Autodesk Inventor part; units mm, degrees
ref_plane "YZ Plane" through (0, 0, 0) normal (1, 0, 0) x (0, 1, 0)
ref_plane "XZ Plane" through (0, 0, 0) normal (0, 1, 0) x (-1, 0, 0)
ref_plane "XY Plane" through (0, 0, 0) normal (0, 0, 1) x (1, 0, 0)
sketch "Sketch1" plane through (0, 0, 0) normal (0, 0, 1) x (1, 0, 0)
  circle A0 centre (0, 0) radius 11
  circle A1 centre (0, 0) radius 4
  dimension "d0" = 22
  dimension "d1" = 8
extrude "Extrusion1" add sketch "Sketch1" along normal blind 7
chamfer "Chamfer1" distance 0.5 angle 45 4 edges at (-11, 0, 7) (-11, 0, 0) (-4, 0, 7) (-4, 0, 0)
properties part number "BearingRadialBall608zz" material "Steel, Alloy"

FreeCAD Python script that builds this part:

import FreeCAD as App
import Part
import Sketcher
Q = App.Units.Quantity


def edges_at(feature, points):
    """Names of the edges that pass closest to the given points."""
    edges = feature.Shape.Edges
    near = lambda p: min(range(len(edges)), key=lambda i: edges[i].distToShape(Part.Vertex(*p))[0])
    return sorted({f"Edge{near(p) + 1}" for p in points})

doc = App.newDocument("Part")
body = doc.addObject("PartDesign::Body", "Body")

# Sketch on XY plane
sketch1 = doc.addObject("Sketcher::SketchObject", "Sketch")
body.addObject(sketch1)
sketch1.AttachmentSupport = (doc.XY_Plane, [""])
sketch1.MapMode = "FlatFace"
sketch1.addGeometry([
    Part.Circle(App.Vector(0, 0, 0), App.Vector(0, 0, 1), 11),
    Part.Circle(App.Vector(0, 0, 0), App.Vector(0, 0, 1), 4),
], False)
sketch1.addConstraint([
    Sketcher.Constraint("Coincident", 0, 3, -1, 1),
    Sketcher.Constraint("Coincident", 1, 3, -1, 1),
    Sketcher.Constraint("Diameter", 0, Q("22 mm")),
    Sketcher.Constraint("Diameter", 1, Q("8 mm")),
])
pad1 = doc.addObject("PartDesign::Pad", "Pad")
body.addObject(pad1)
pad1.Profile = sketch1
pad1.Length = 7
doc.recompute()

chamfer = doc.addObject("PartDesign::Chamfer", "Chamfer")
body.addObject(chamfer)
chamfer.Base = (pad1, edges_at(pad1, [
    (-11, 0, 7),
    (-11, 0, 0),
    (-4, 0, 7),
    (-4, 0, 0),
]))
chamfer.Size = 0.5

doc.recompute()
